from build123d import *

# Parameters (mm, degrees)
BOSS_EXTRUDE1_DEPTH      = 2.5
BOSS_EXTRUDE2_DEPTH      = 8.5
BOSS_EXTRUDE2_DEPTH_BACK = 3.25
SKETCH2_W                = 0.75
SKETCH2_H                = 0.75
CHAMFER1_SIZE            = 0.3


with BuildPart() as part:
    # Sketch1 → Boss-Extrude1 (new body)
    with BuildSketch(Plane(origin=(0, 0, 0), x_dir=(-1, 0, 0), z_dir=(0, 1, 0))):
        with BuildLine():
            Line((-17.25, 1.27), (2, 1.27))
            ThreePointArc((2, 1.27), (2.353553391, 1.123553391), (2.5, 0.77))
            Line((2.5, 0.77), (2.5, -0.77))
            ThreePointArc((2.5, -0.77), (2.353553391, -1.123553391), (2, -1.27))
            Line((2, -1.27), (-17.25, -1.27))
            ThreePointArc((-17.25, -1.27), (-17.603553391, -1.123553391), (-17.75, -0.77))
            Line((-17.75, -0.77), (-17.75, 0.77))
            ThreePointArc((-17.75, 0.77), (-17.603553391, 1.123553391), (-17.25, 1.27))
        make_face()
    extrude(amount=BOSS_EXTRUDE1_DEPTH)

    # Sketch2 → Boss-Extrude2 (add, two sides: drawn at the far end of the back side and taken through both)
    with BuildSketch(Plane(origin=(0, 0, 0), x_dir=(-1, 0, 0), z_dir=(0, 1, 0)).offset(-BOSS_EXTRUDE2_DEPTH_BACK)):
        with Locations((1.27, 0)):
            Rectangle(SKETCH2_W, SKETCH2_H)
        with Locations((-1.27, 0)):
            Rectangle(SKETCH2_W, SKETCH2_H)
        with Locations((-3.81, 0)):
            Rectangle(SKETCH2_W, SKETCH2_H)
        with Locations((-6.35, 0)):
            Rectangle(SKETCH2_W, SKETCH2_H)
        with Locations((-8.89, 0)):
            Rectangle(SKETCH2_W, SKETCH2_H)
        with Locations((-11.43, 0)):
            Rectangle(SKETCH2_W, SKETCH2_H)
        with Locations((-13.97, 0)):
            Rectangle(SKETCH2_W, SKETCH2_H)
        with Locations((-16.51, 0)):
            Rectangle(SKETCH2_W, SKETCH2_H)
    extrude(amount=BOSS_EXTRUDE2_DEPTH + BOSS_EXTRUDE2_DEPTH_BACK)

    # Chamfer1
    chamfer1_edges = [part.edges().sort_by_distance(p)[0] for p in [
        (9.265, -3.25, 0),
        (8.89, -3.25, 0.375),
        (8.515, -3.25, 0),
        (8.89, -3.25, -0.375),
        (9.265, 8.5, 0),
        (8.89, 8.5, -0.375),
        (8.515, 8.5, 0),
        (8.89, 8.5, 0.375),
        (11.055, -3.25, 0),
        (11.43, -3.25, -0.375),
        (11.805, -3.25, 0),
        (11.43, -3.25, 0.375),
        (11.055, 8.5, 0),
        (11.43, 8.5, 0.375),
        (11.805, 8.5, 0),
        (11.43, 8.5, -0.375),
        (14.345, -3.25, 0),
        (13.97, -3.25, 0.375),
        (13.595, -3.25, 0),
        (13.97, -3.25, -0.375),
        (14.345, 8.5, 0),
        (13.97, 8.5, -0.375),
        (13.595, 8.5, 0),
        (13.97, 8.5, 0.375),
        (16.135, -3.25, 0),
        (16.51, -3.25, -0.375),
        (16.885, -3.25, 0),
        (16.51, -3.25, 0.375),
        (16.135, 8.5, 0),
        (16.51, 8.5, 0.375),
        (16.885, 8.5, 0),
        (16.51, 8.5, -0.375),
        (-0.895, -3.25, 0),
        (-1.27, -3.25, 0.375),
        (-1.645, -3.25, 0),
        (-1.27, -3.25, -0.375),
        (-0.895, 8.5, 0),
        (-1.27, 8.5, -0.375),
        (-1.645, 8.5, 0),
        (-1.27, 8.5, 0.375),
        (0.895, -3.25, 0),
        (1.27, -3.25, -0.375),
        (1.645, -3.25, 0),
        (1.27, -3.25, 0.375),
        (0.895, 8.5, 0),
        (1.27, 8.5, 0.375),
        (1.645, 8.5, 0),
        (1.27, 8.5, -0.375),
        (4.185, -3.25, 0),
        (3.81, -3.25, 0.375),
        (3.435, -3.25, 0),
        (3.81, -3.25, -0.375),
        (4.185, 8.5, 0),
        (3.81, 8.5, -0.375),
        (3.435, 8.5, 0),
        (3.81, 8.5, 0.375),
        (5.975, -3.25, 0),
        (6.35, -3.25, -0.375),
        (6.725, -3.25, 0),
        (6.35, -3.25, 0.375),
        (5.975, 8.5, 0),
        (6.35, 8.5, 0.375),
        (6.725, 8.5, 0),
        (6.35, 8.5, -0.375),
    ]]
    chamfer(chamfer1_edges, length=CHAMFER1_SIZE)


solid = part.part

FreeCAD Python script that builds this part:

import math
import FreeCAD as App
import Part
import Sketcher
from FreeCAD import Vector


def edges_at(feature, points):
    """Names of the edges that pass closest to the given points."""
    edges = feature.Shape.Edges
    near = lambda p: min(range(len(edges)), key=lambda i: edges[i].distToShape(Part.Vertex(*p))[0])
    return sorted({f"Edge{near(p) + 1}" for p in points})


def add_polygon(sketch, points):
    """Adds a closed chain of lines whose ends are joined by coincident constraints."""
    first, n = sketch.GeometryCount, len(points)
    for a, b in zip(points, points[1:] + points[:1]):
        sketch.addGeometry(Part.LineSegment(App.Vector(*a, 0), App.Vector(*b, 0)), False)
    for i in range(n):
        sketch.addConstraint(Sketcher.Constraint("Coincident", first + i, 2, first + (i + 1) % n, 1))

doc = App.newDocument("Part")
body = doc.addObject("PartDesign::Body", "Body")

sketch1 = body.newObject("Sketcher::SketchObject", "Sketch")
sketch1.AttachmentSupport = (doc.getObject("XZ_Plane"), [""])
sketch1.MapMode = "FlatFace"
sketch1.addGeometry(Part.LineSegment(Vector(-2, 1.27, 0), Vector(17.25, 1.27, 0)), False)
sketch1.addGeometry(Part.ArcOfCircle(Part.Circle(Vector(17.25, 0.77, 0), Vector(0, 0, 1), 0.5), math.radians(0), math.radians(90)), False)
sketch1.addGeometry(Part.LineSegment(Vector(17.75, 0.77, 0), Vector(17.75, -0.77, 0)), False)
sketch1.addGeometry(Part.ArcOfCircle(Part.Circle(Vector(17.25, -0.77, 0), Vector(0, 0, 1), 0.5), math.radians(-90), math.radians(0)), False)
sketch1.addGeometry(Part.LineSegment(Vector(17.25, -1.27, 0), Vector(-2, -1.27, 0)), False)
sketch1.addGeometry(Part.ArcOfCircle(Part.Circle(Vector(-2, -0.77, 0), Vector(0, 0, 1), 0.5), math.radians(180), math.radians(270)), False)
sketch1.addGeometry(Part.LineSegment(Vector(-2.5, -0.77, 0), Vector(-2.5, 0.77, 0)), False)
sketch1.addGeometry(Part.ArcOfCircle(Part.Circle(Vector(-2, 0.77, 0), Vector(0, 0, 1), 0.5), math.radians(90), math.radians(180)), False)
sketch1.addConstraint(Sketcher.Constraint("Tangent", 0, 2, 1, 2))
sketch1.addConstraint(Sketcher.Constraint("Tangent", 1, 1, 2, 1))
sketch1.addConstraint(Sketcher.Constraint("Tangent", 2, 2, 3, 2))
sketch1.addConstraint(Sketcher.Constraint("Tangent", 3, 1, 4, 1))
sketch1.addConstraint(Sketcher.Constraint("Tangent", 4, 2, 5, 2))
sketch1.addConstraint(Sketcher.Constraint("Tangent", 5, 1, 6, 1))
sketch1.addConstraint(Sketcher.Constraint("Tangent", 6, 2, 7, 2))
sketch1.addConstraint(Sketcher.Constraint("Tangent", 7, 1, 0, 1))
sketch1.addConstraint(Sketcher.Constraint("Horizontal", 0))
sketch1.addConstraint(Sketcher.Constraint("Vertical", 2))
sketch1.addConstraint(Sketcher.Constraint("Horizontal", 4))
sketch1.addConstraint(Sketcher.Constraint("Vertical", 6))
sketch1.addConstraint(Sketcher.Constraint("Equal", 1, 3))
sketch1.addConstraint(Sketcher.Constraint("Equal", 3, 5))
sketch1.addConstraint(Sketcher.Constraint("Equal", 5, 7))
sketch1.addConstraint(Sketcher.Constraint("Radius", 1, 0.5))
sketch1.addConstraint(Sketcher.Constraint("DistanceX", 5, 3, -1, 1, 2.0))
sketch1.addConstraint(Sketcher.Constraint("DistanceX", 0, 1, 0, 2, 19.25))
sketch1.addConstraint(Sketcher.Constraint("DistanceY", 2, 2, 2, 1, 1.54))
sketch1.addConstraint(Sketcher.Constraint("DistanceY", -1, 1, 1, 3, 0.77))
pad1 = body.newObject("PartDesign::Pad", "Pad")
pad1.Profile = sketch1
pad1.Length = 2.5
pad1.Reversed = True

sketch2 = body.newObject("Sketcher::SketchObject", "Sketch001")
sketch2.AttachmentSupport = (doc.getObject("XZ_Plane"), [""])
sketch2.MapMode = "FlatFace"
add_polygon(sketch2, [(-0.9, 0.4), (-0.9, -0.4), (-1.6, -0.4), (-1.6, 0.4)])
add_polygon(sketch2, [(1.6, 0.4), (1.6, -0.4), (0.9, -0.4), (0.9, 0.4)])
add_polygon(sketch2, [(4.2, 0.4), (4.2, -0.4), (3.4, -0.4), (3.4, 0.4)])
add_polygon(sketch2, [(6.7, 0.4), (6.7, -0.4), (6, -0.4), (6, 0.4)])
add_polygon(sketch2, [(9.3, 0.4), (9.3, -0.4), (8.5, -0.4), (8.5, 0.4)])
add_polygon(sketch2, [(11.8, 0.4), (11.8, -0.4), (11.1, -0.4), (11.1, 0.4)])
add_polygon(sketch2, [(14.3, 0.4), (14.3, -0.4), (13.6, -0.4), (13.6, 0.4)])
add_polygon(sketch2, [(16.9, 0.4), (16.9, -0.4), (16.1, -0.4), (16.1, 0.4)])
sketch2.addConstraint(Sketcher.Constraint("Vertical", 0))
sketch2.addConstraint(Sketcher.Constraint("Horizontal", 1))
sketch2.addConstraint(Sketcher.Constraint("Vertical", 2))
sketch2.addConstraint(Sketcher.Constraint("Horizontal", 3))
sketch2.addConstraint(Sketcher.Constraint("Vertical", 4))
sketch2.addConstraint(Sketcher.Constraint("Horizontal", 5))
sketch2.addConstraint(Sketcher.Constraint("Vertical", 6))
sketch2.addConstraint(Sketcher.Constraint("Horizontal", 7))
sketch2.addConstraint(Sketcher.Constraint("Vertical", 8))
sketch2.addConstraint(Sketcher.Constraint("Horizontal", 9))
sketch2.addConstraint(Sketcher.Constraint("Vertical", 10))
sketch2.addConstraint(Sketcher.Constraint("Horizontal", 11))
sketch2.addConstraint(Sketcher.Constraint("Vertical", 12))
sketch2.addConstraint(Sketcher.Constraint("Horizontal", 13))
sketch2.addConstraint(Sketcher.Constraint("Vertical", 14))
sketch2.addConstraint(Sketcher.Constraint("Horizontal", 15))
sketch2.addConstraint(Sketcher.Constraint("Vertical", 16))
sketch2.addConstraint(Sketcher.Constraint("Horizontal", 17))
sketch2.addConstraint(Sketcher.Constraint("Vertical", 18))
sketch2.addConstraint(Sketcher.Constraint("Horizontal", 19))
sketch2.addConstraint(Sketcher.Constraint("Vertical", 20))
sketch2.addConstraint(Sketcher.Constraint("Horizontal", 21))
sketch2.addConstraint(Sketcher.Constraint("Vertical", 22))
sketch2.addConstraint(Sketcher.Constraint("Horizontal", 23))
sketch2.addConstraint(Sketcher.Constraint("Vertical", 24))
sketch2.addConstraint(Sketcher.Constraint("Horizontal", 25))
sketch2.addConstraint(Sketcher.Constraint("Vertical", 26))
sketch2.addConstraint(Sketcher.Constraint("Horizontal", 27))
sketch2.addConstraint(Sketcher.Constraint("Vertical", 28))
sketch2.addConstraint(Sketcher.Constraint("Horizontal", 29))
sketch2.addConstraint(Sketcher.Constraint("Vertical", 30))
sketch2.addConstraint(Sketcher.Constraint("Horizontal", 31))
sketch2.addConstraint(Sketcher.Constraint("Symmetric", 2, 2, 4, 2, -1, 1))
sketch2.addConstraint(Sketcher.Constraint("Symmetric", 0, 2, 6, 2, -1, 1))
sketch2.addConstraint(Sketcher.Constraint("Horizontal", 1, 2, 4, 2))
sketch2.addConstraint(Sketcher.Constraint("Horizontal", 5, 2, 8, 2))
sketch2.addConstraint(Sketcher.Constraint("Horizontal", 7, 2, 10, 2))
sketch2.addConstraint(Sketcher.Constraint("Horizontal", 9, 2, 12, 2))
sketch2.addConstraint(Sketcher.Constraint("Horizontal", 11, 2, 14, 2))
sketch2.addConstraint(Sketcher.Constraint("Horizontal", 13, 2, 16, 2))
sketch2.addConstraint(Sketcher.Constraint("Horizontal", 15, 2, 18, 2))
sketch2.addConstraint(Sketcher.Constraint("Horizontal", 17, 2, 20, 2))
sketch2.addConstraint(Sketcher.Constraint("Horizontal", 19, 2, 22, 2))
sketch2.addConstraint(Sketcher.Constraint("Horizontal", 21, 2, 24, 2))
sketch2.addConstraint(Sketcher.Constraint("Horizontal", 23, 2, 26, 2))
sketch2.addConstraint(Sketcher.Constraint("Horizontal", 25, 2, 28, 2))
sketch2.addConstraint(Sketcher.Constraint("Horizontal", 27, 2, 30, 2))
sketch2.addConstraint(Sketcher.Constraint("Equal", 7, 9))
sketch2.addConstraint(Sketcher.Constraint("Equal", 11, 13))
sketch2.addConstraint(Sketcher.Constraint("Equal", 15, 17))
sketch2.addConstraint(Sketcher.Constraint("Equal", 19, 21))
sketch2.addConstraint(Sketcher.Constraint("Equal", 23, 25))
sketch2.addConstraint(Sketcher.Constraint("Equal", 27, 29))
sketch2.addConstraint(Sketcher.Constraint("Equal", 31, 0))
sketch2.addConstraint(Sketcher.Constraint("DistanceX", 1, 2, 1, 1, 0.75))
sketch2.addConstraint(Sketcher.Constraint("DistanceX", 0, 2, 4, 2, 2.54))
sketch2.addConstraint(Sketcher.Constraint("DistanceX", 4, 2, 8, 2, 2.54))
sketch2.addConstraint(Sketcher.Constraint("DistanceX", 8, 2, 12, 2, 2.54))
sketch2.addConstraint(Sketcher.Constraint("DistanceX", 12, 2, 16, 2, 2.54))
sketch2.addConstraint(Sketcher.Constraint("DistanceX", 16, 2, 20, 2, 2.54))
sketch2.addConstraint(Sketcher.Constraint("DistanceX", 20, 2, 24, 2, 2.54))
sketch2.addConstraint(Sketcher.Constraint("DistanceX", 24, 2, 28, 2, 2.54))
pad2 = body.newObject("PartDesign::Pad", "Pad001")
pad2.Profile = sketch2
pad2.Type = "TwoLengths"
pad2.Length = 8.5
pad2.Length2 = 3.25
pad2.Reversed = True
doc.recompute()

chamfer = body.newObject("PartDesign::Chamfer", "Chamfer")
chamfer.Base = (pad2, edges_at(pad2, [
    (9.265, -3.25, 0),
    (8.89, -3.25, 0.375),
    (8.515, -3.25, 0),
    (8.89, -3.25, -0.375),
    (9.265, 8.5, 0),
    (8.89, 8.5, -0.375),
    (8.515, 8.5, 0),
    (8.89, 8.5, 0.375),
    (11.055, -3.25, 0),
    (11.43, -3.25, -0.375),
    (11.805, -3.25, 0),
    (11.43, -3.25, 0.375),
    (11.055, 8.5, 0),
    (11.43, 8.5, 0.375),
    (11.805, 8.5, 0),
    (11.43, 8.5, -0.375),
    (14.345, -3.25, 0),
    (13.97, -3.25, 0.375),
    (13.595, -3.25, 0),
    (13.97, -3.25, -0.375),
    (14.345, 8.5, 0),
    (13.97, 8.5, -0.375),
    (13.595, 8.5, 0),
    (13.97, 8.5, 0.375),
    (16.135, -3.25, 0),
    (16.51, -3.25, -0.375),
    (16.885, -3.25, 0),
    (16.51, -3.25, 0.375),
    (16.135, 8.5, 0),
    (16.51, 8.5, 0.375),
    (16.885, 8.5, 0),
    (16.51, 8.5, -0.375),
    (-0.895, -3.25, 0),
    (-1.27, -3.25, 0.375),
    (-1.645, -3.25, 0),
    (-1.27, -3.25, -0.375),
    (-0.895, 8.5, 0),
    (-1.27, 8.5, -0.375),
    (-1.645, 8.5, 0),
    (-1.27, 8.5, 0.375),
    (0.895, -3.25, 0),
    (1.27, -3.25, -0.375),
    (1.645, -3.25, 0),
    (1.27, -3.25, 0.375),
    (0.895, 8.5, 0),
    (1.27, 8.5, 0.375),
    (1.645, 8.5, 0),
    (1.27, 8.5, -0.375),
    (4.185, -3.25, 0),
    (3.81, -3.25, 0.375),
    (3.435, -3.25, 0),
    (3.81, -3.25, -0.375),
    (4.185, 8.5, 0),
    (3.81, 8.5, -0.375),
    (3.435, 8.5, 0),
    (3.81, 8.5, 0.375),
    (5.975, -3.25, 0),
    (6.35, -3.25, -0.375),
    (6.725, -3.25, 0),
    (6.35, -3.25, 0.375),
    (5.975, 8.5, 0),
    (6.35, 8.5, 0.375),
    (6.725, 8.5, 0),
    (6.35, 8.5, -0.375),
]))
chamfer.Size = 0.3

doc.recompute()
